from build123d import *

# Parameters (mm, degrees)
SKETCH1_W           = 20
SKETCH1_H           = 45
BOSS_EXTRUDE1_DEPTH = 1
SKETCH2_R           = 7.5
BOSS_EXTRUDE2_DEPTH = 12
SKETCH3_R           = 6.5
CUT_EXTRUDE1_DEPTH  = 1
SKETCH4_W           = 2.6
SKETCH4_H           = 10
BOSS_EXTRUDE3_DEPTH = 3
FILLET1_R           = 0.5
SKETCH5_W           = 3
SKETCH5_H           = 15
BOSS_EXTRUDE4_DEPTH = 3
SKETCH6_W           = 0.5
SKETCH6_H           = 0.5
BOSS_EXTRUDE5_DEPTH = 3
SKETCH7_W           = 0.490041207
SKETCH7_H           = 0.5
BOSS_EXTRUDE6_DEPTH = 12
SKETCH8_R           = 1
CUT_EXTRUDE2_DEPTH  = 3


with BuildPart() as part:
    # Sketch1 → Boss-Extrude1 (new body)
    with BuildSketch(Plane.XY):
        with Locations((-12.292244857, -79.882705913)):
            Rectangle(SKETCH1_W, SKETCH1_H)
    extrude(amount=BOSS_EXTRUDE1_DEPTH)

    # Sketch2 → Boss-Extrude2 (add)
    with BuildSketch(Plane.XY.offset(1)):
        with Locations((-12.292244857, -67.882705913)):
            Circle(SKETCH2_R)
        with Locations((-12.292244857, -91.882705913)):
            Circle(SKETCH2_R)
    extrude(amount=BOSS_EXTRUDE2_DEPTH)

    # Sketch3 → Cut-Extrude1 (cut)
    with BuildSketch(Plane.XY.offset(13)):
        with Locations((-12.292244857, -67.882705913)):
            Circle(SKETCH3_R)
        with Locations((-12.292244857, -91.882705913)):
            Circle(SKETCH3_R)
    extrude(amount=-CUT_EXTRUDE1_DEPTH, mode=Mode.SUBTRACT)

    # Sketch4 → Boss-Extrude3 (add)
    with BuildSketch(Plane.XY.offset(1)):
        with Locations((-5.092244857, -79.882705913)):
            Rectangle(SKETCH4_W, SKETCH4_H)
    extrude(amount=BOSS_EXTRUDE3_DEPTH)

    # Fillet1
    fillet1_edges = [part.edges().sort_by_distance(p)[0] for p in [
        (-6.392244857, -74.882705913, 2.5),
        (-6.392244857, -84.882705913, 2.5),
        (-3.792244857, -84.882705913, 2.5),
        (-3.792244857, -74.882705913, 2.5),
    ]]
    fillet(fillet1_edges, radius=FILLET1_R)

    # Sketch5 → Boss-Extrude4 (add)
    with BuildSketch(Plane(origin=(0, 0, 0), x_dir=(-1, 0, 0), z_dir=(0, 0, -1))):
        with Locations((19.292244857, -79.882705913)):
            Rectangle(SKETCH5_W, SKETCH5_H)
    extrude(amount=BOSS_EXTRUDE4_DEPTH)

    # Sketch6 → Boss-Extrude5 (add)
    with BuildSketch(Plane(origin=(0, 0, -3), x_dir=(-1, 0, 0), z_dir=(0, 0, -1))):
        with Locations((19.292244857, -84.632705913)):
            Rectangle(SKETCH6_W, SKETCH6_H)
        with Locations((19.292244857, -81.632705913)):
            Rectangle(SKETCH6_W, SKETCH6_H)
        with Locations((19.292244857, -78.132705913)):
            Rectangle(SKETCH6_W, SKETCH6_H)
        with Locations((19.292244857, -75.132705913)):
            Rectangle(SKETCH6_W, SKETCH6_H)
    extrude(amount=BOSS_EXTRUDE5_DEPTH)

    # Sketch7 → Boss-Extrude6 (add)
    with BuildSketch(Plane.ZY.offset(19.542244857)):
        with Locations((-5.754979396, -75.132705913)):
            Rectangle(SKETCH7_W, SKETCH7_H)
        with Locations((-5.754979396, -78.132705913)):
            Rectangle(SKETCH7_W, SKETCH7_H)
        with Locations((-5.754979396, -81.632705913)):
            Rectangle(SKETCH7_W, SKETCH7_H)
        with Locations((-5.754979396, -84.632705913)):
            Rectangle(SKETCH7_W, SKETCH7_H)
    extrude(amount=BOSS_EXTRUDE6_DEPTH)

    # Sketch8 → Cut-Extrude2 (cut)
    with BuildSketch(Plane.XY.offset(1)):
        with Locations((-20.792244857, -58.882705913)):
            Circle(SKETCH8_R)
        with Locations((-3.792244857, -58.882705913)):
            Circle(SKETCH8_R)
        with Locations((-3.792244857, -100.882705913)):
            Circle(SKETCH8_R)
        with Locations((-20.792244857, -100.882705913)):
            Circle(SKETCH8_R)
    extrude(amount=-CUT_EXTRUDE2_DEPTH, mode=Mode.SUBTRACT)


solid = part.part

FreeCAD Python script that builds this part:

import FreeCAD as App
import Part
import Sketcher


def edges_at(feature, points):
    """Names of the edges that pass closest to the given points."""
    edges = feature.Shape.Edges
    near = lambda p: min(range(len(edges)), key=lambda i: edges[i].distToShape(Part.Vertex(*p))[0])
    return sorted({f"Edge{near(p) + 1}" for p in points})


def add_polygon(sketch, points):
    """Adds a closed chain of lines whose ends are joined by coincident constraints."""
    first, n = sketch.GeometryCount, len(points)
    for a, b in zip(points, points[1:] + points[:1]):
        sketch.addGeometry(Part.LineSegment(App.Vector(*a, 0), App.Vector(*b, 0)), False)
    for i in range(n):
        sketch.addConstraint(Sketcher.Constraint("Coincident", first + i, 2, first + (i + 1) % n, 1))

doc = App.newDocument("Part")
body = doc.addObject("PartDesign::Body", "Body")

# Sketch on XY plane
sketch1 = body.newObject("Sketcher::SketchObject", "Sketch")
sketch1.AttachmentSupport = (doc.getObject("XY_Plane"), [""])
sketch1.MapMode = "FlatFace"
add_polygon(sketch1, [(-22.292245, -57.382706), (-22.292245, -102.382706), (-2.292245, -102.382706), (-2.292245, -57.382706)])  # lines 0-3
sketch1.addConstraint([
    Sketcher.Constraint("Vertical", 0),
    Sketcher.Constraint("Horizontal", 1),
    Sketcher.Constraint("Vertical", 2),
    Sketcher.Constraint("Horizontal", 3),
    Sketcher.Constraint("DistanceX", 1, 1, 1, 2, 20.0),
    Sketcher.Constraint("DistanceY", 0, 2, 0, 1, 45.0),
    Sketcher.Constraint("DistanceX", 0, 2, -1, 1, 22.292245),
    Sketcher.Constraint("DistanceY", 0, 2, -1, 1, 102.382706),
])
pad1 = body.newObject("PartDesign::Pad", "Pad")
pad1.Profile = sketch1
pad1.Length = 1

# Sketch on XY plane
sketch2 = body.newObject("Sketcher::SketchObject", "Sketch001")
sketch2.AttachmentSupport = (doc.getObject("XY_Plane"), [""])
sketch2.MapMode = "FlatFace"
sketch2.AttachmentOffset = App.Placement(App.Vector(0, 0, 1), App.Rotation())
sketch2.addGeometry([
    Part.Circle(App.Vector(-12.292245, -67.882706, 0), App.Vector(0, 0, 1), 7.5),
    Part.Circle(App.Vector(-12.292245, -91.882706, 0), App.Vector(0, 0, 1), 7.5),
], False)
sketch2.addConstraint([
    Sketcher.Constraint("Equal", 0, 1),
    Sketcher.Constraint("Vertical", 0, 3, 1, 3),
    Sketcher.Constraint("Diameter", 0, 15.0),
    Sketcher.Constraint("DistanceY", 1, 3, 0, 3, 24.0),
    Sketcher.Constraint("DistanceX", 0, 3, -1, 1, 12.292245),
    Sketcher.Constraint("DistanceY", 0, 3, -1, 1, 67.882706),
])
pad2 = body.newObject("PartDesign::Pad", "Pad001")
pad2.Profile = sketch2
pad2.Length = 12

# Sketch on XY plane
sketch3 = body.newObject("Sketcher::SketchObject", "Sketch002")
sketch3.AttachmentSupport = (doc.getObject("XY_Plane"), [""])
sketch3.MapMode = "FlatFace"
sketch3.AttachmentOffset = App.Placement(App.Vector(0, 0, 13), App.Rotation())
sketch3.addGeometry([
    Part.Circle(App.Vector(-12.292245, -67.882706, 0), App.Vector(0, 0, 1), 6.5),
    Part.Circle(App.Vector(-12.292245, -91.882706, 0), App.Vector(0, 0, 1), 6.5),
], False)
sketch3.addConstraint([
    Sketcher.Constraint("Equal", 0, 1),
    Sketcher.Constraint("Vertical", 0, 3, 1, 3),
    Sketcher.Constraint("Diameter", 0, 13.0),
    Sketcher.Constraint("DistanceY", 1, 3, 0, 3, 24.0),
    Sketcher.Constraint("DistanceX", 0, 3, -1, 1, 12.292245),
    Sketcher.Constraint("DistanceY", 0, 3, -1, 1, 67.882706),
])
pocket1 = body.newObject("PartDesign::Pocket", "Pocket")
pocket1.Profile = sketch3
pocket1.Length = 1

# Sketch on XY plane
sketch4 = body.newObject("Sketcher::SketchObject", "Sketch003")
sketch4.AttachmentSupport = (doc.getObject("XY_Plane"), [""])
sketch4.MapMode = "FlatFace"
sketch4.AttachmentOffset = App.Placement(App.Vector(0, 0, 1), App.Rotation())
add_polygon(sketch4, [(-6.392245, -74.882706), (-6.392245, -84.882706), (-3.792245, -84.882706), (-3.792245, -74.882706)])  # lines 0-3
sketch4.addConstraint([
    Sketcher.Constraint("Vertical", 0),
    Sketcher.Constraint("Horizontal", 1),
    Sketcher.Constraint("Vertical", 2),
    Sketcher.Constraint("Horizontal", 3),
    Sketcher.Constraint("DistanceY", 0, 2, 0, 1, 10.0),
    Sketcher.Constraint("DistanceX", 1, 1, 1, 2, 2.6),
    Sketcher.Constraint("DistanceX", 0, 2, -1, 1, 6.392245),
    Sketcher.Constraint("DistanceY", 0, 2, -1, 1, 84.882706),
])
pad3 = body.newObject("PartDesign::Pad", "Pad002")
pad3.Profile = sketch4
pad3.Length = 3
doc.recompute()

fillet = body.newObject("PartDesign::Fillet", "Fillet")
fillet.Base = (pad3, edges_at(pad3, [
    (-6.392, -74.883, 2.5),
    (-6.392, -84.883, 2.5),
    (-3.792, -84.883, 2.5),
    (-3.792, -74.883, 2.5),
]))
fillet.Radius = 0.5

# Sketch on XY plane
sketch5 = body.newObject("Sketcher::SketchObject", "Sketch004")
sketch5.AttachmentSupport = (doc.getObject("XY_Plane"), [""])
sketch5.MapMode = "FlatFace"
add_polygon(sketch5, [(-17.792245, -72.382706), (-17.792245, -87.382706), (-20.792245, -87.382706), (-20.792245, -72.382706)])  # lines 0-3
sketch5.addConstraint([
    Sketcher.Constraint("Vertical", 0),
    Sketcher.Constraint("Horizontal", 1),
    Sketcher.Constraint("Vertical", 2),
    Sketcher.Constraint("Horizontal", 3),
    Sketcher.Constraint("DistanceX", 1, 2, 1, 1, 3.0),
    Sketcher.Constraint("DistanceY", 0, 2, 0, 1, 15.0),
    Sketcher.Constraint("DistanceX", 0, 2, -1, 1, 17.792245),
    Sketcher.Constraint("DistanceY", 0, 2, -1, 1, 87.382706),
])
pad4 = body.newObject("PartDesign::Pad", "Pad003")
pad4.Profile = sketch5
pad4.Length = 3
pad4.Reversed = True

# Sketch on XY plane
sketch6 = body.newObject("Sketcher::SketchObject", "Sketch005")
sketch6.AttachmentSupport = (doc.getObject("XY_Plane"), [""])
sketch6.MapMode = "FlatFace"
sketch6.AttachmentOffset = App.Placement(App.Vector(0, 0, -3), App.Rotation())
add_polygon(sketch6, [(-19.042245, -84.382706), (-19.042245, -84.882706), (-19.542245, -84.882706), (-19.542245, -84.382706)])  # lines 0-3
add_polygon(sketch6, [(-19.042245, -81.382706), (-19.042245, -81.882706), (-19.542245, -81.882706), (-19.542245, -81.382706)])  # lines 4-7
add_polygon(sketch6, [(-19.042245, -77.882706), (-19.042245, -78.382706), (-19.542245, -78.382706), (-19.542245, -77.882706)])  # lines 8-11
add_polygon(sketch6, [(-19.042245, -74.882706), (-19.042245, -75.382706), (-19.542245, -75.382706), (-19.542245, -74.882706)])  # lines 12-15
sketch6.addConstraint([
    Sketcher.Constraint("Vertical", 0),
    Sketcher.Constraint("Horizontal", 1),
    Sketcher.Constraint("Vertical", 2),
    Sketcher.Constraint("Horizontal", 3),
    Sketcher.Constraint("Vertical", 4),
    Sketcher.Constraint("Horizontal", 5),
    Sketcher.Constraint("Vertical", 6),
    Sketcher.Constraint("Horizontal", 7),
    Sketcher.Constraint("Vertical", 8),
    Sketcher.Constraint("Horizontal", 9),
    Sketcher.Constraint("Vertical", 10),
    Sketcher.Constraint("Horizontal", 11),
    Sketcher.Constraint("Vertical", 12),
    Sketcher.Constraint("Horizontal", 13),
    Sketcher.Constraint("Vertical", 14),
    Sketcher.Constraint("Horizontal", 15),
    Sketcher.Constraint("Vertical", 3, 2, 4, 2),
    Sketcher.Constraint("Vertical", 2, 2, 5, 2),
    Sketcher.Constraint("Vertical", 7, 2, 8, 2),
    Sketcher.Constraint("Vertical", 6, 2, 9, 2),
    Sketcher.Constraint("Vertical", 11, 2, 12, 2),
    Sketcher.Constraint("Vertical", 10, 2, 13, 2),
    Sketcher.Constraint("Equal", 15, 0),
    Sketcher.Constraint("Equal", 2, 4),
    Sketcher.Constraint("Equal", 6, 8),
    Sketcher.Constraint("Equal", 10, 12),
    Sketcher.Constraint("DistanceX", 1, 2, 1, 1, 0.5),
    Sketcher.Constraint("DistanceY", 0, 2, 4, 2, 3.0),
    Sketcher.Constraint("DistanceY", 7, 2, 8, 2, 3.0),
    Sketcher.Constraint("DistanceY", 8, 2, 12, 2, 3.0),
    Sketcher.Constraint("DistanceX", 0, 2, -1, 1, 19.042245),
    Sketcher.Constraint("DistanceY", 0, 2, -1, 1, 84.882706),
])
pad5 = body.newObject("PartDesign::Pad", "Pad004")
pad5.Profile = sketch6
pad5.Length = 3
pad5.Reversed = True

# Sketch on YZ plane
sketch7 = body.newObject("Sketcher::SketchObject", "Sketch006")
sketch7.AttachmentSupport = (doc.getObject("YZ_Plane"), [""])
sketch7.MapMode = "FlatFace"
sketch7.AttachmentOffset = App.Placement(App.Vector(0, 0, -19.542245), App.Rotation())
add_polygon(sketch7, [(-74.882706, -6), (-75.382706, -6), (-75.382706, -5.509959), (-74.882706, -5.509959)])  # lines 0-3
add_polygon(sketch7, [(-77.882706, -6), (-78.382706, -6), (-78.382706, -5.509959), (-77.882706, -5.509959)])  # lines 4-7
add_polygon(sketch7, [(-81.382706, -6), (-81.882706, -6), (-81.882706, -5.509959), (-81.382706, -5.509959)])  # lines 8-11
add_polygon(sketch7, [(-84.382706, -6), (-84.882706, -6), (-84.882706, -5.509959), (-84.382706, -5.509959)])  # lines 12-15
sketch7.addConstraint([
    Sketcher.Constraint("Horizontal", 0),
    Sketcher.Constraint("Vertical", 1),
    Sketcher.Constraint("Horizontal", 2),
    Sketcher.Constraint("Vertical", 3),
    Sketcher.Constraint("Horizontal", 4),
    Sketcher.Constraint("Vertical", 5),
    Sketcher.Constraint("Horizontal", 6),
    Sketcher.Constraint("Vertical", 7),
    Sketcher.Constraint("Horizontal", 8),
    Sketcher.Constraint("Vertical", 9),
    Sketcher.Constraint("Horizontal", 10),
    Sketcher.Constraint("Vertical", 11),
    Sketcher.Constraint("Horizontal", 12),
    Sketcher.Constraint("Vertical", 13),
    Sketcher.Constraint("Horizontal", 14),
    Sketcher.Constraint("Vertical", 15),
    Sketcher.Constraint("Horizontal", 3, 2, 4, 2),
    Sketcher.Constraint("Horizontal", 2, 2, 5, 2),
    Sketcher.Constraint("Horizontal", 7, 2, 8, 2),
    Sketcher.Constraint("Horizontal", 6, 2, 9, 2),
    Sketcher.Constraint("Horizontal", 11, 2, 12, 2),
    Sketcher.Constraint("Horizontal", 10, 2, 13, 2),
    Sketcher.Constraint("Equal", 2, 4),
    Sketcher.Constraint("Equal", 6, 8),
    Sketcher.Constraint("Equal", 10, 12),
    Sketcher.Constraint("DistanceX", 0, 2, 0, 1, 0.5),
    Sketcher.Constraint("DistanceY", 0, 2, -1, 1, 6.0),
    Sketcher.Constraint("DistanceX", 4, 2, 0, 2, 3.0),
    Sketcher.Constraint("DistanceX", 8, 2, 7, 2, 4.0),
    Sketcher.Constraint("DistanceX", 12, 2, 8, 2, 3.0),
    Sketcher.Constraint("DistanceY", 1, 1, 1, 2, 0.490041),
    Sketcher.Constraint("DistanceX", 0, 2, -1, 1, 75.382706),
])
pad6 = body.newObject("PartDesign::Pad", "Pad005")
pad6.Profile = sketch7
pad6.Length = 12
pad6.Reversed = True

# Sketch on XY plane
sketch8 = body.newObject("Sketcher::SketchObject", "Sketch007")
sketch8.AttachmentSupport = (doc.getObject("XY_Plane"), [""])
sketch8.MapMode = "FlatFace"
sketch8.AttachmentOffset = App.Placement(App.Vector(0, 0, 1), App.Rotation())
sketch8.addGeometry([
    Part.Circle(App.Vector(-20.792245, -58.882706, 0), App.Vector(0, 0, 1), 1),
    Part.Circle(App.Vector(-3.792245, -58.882706, 0), App.Vector(0, 0, 1), 1),
    Part.Circle(App.Vector(-3.792245, -100.882706, 0), App.Vector(0, 0, 1), 1),
    Part.Circle(App.Vector(-20.792245, -100.882706, 0), App.Vector(0, 0, 1), 1),
], False)
sketch8.addConstraint([
    Sketcher.Constraint("Equal", 0, 1),
    Sketcher.Constraint("Equal", 1, 2),
    Sketcher.Constraint("Equal", 2, 3),
    Sketcher.Constraint("Horizontal", 0, 3, 1, 3),
    Sketcher.Constraint("Horizontal", 2, 3, 3, 3),
    Sketcher.Constraint("Vertical", 1, 3, 2, 3),
    Sketcher.Constraint("Vertical", 0, 3, 3, 3),
    Sketcher.Constraint("Diameter", 0, 2.0),
    Sketcher.Constraint("DistanceX", 0, 3, 1, 3, 17.0),
    Sketcher.Constraint("DistanceY", 2, 3, 1, 3, 42.0),
    Sketcher.Constraint("DistanceX", 0, 3, -1, 1, 20.792245),
    Sketcher.Constraint("DistanceY", 0, 3, -1, 1, 58.882706),
])
pocket2 = body.newObject("PartDesign::Pocket", "Pocket001")
pocket2.Profile = sketch8
pocket2.Length = 3

doc.recompute()
